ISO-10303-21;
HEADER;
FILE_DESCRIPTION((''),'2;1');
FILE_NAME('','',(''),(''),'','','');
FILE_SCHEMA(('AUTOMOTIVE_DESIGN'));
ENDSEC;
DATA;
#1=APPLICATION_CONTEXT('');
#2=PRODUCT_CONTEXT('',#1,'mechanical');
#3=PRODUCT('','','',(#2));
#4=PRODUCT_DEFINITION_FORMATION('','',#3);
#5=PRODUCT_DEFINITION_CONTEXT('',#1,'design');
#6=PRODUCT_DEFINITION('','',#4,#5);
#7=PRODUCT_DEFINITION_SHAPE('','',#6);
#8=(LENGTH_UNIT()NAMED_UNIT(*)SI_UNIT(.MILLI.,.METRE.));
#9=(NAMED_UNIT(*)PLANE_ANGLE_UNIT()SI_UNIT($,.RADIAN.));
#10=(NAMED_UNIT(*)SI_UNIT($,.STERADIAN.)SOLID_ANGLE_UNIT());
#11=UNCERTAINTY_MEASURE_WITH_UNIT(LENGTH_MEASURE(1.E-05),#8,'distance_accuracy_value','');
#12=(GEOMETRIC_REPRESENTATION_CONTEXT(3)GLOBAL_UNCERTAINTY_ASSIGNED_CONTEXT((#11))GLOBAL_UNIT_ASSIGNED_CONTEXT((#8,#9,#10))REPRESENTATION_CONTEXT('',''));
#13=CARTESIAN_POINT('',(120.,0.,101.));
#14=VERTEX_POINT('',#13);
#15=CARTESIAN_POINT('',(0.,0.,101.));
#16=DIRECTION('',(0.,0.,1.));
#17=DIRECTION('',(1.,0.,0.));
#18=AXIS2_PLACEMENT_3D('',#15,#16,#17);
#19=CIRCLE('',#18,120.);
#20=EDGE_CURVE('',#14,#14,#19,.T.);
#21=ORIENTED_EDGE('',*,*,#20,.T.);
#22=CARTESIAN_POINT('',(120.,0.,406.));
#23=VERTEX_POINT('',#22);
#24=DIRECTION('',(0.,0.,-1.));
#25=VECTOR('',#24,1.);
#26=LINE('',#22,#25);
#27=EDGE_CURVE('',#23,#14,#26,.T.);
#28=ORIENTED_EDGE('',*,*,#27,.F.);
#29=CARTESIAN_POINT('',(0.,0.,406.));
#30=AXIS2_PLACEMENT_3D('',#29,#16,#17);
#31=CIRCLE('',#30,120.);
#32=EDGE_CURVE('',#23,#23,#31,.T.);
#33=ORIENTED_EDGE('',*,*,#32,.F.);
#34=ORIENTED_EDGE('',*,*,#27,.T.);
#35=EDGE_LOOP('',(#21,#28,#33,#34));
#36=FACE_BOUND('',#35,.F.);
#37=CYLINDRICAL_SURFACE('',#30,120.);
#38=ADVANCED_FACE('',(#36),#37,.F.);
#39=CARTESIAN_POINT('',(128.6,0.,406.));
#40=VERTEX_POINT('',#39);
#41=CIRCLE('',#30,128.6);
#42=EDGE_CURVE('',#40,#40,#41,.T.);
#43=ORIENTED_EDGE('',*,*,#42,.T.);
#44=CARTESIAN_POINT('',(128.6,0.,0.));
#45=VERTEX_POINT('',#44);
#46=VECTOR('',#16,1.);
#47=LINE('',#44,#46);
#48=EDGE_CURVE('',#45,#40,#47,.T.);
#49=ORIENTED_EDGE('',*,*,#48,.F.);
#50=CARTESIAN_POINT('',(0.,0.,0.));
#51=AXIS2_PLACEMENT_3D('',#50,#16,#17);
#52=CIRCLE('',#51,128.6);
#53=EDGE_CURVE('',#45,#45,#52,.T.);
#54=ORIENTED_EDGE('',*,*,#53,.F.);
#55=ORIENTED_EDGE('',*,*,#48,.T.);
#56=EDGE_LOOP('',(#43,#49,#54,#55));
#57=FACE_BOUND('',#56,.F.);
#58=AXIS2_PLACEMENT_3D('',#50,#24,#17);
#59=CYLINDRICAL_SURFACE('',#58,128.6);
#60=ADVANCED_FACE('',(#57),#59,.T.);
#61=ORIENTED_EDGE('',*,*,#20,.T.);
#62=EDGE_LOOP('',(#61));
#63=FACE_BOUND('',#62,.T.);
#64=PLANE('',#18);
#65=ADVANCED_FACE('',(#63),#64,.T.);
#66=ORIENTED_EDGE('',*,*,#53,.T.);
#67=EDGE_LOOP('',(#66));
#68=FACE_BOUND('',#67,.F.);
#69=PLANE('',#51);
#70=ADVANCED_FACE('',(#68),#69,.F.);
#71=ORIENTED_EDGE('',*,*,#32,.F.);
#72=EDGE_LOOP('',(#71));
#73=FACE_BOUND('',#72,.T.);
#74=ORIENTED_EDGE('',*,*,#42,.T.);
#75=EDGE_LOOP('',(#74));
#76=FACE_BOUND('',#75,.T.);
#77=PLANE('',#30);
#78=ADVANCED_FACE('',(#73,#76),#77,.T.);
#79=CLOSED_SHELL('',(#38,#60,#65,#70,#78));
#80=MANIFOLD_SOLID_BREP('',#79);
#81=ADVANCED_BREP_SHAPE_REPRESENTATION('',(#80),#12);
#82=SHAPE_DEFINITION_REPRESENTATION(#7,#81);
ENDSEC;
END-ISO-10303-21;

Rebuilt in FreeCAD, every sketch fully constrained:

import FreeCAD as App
import Part
import Sketcher
Q = App.Units.Quantity

doc = App.newDocument("Part")
body = doc.addObject("PartDesign::Body", "Body")

# Sketch on XY plane
sketch1 = doc.addObject("Sketcher::SketchObject", "Sketch")
body.addObject(sketch1)
sketch1.AttachmentSupport = (doc.XY_Plane, [""])
sketch1.MapMode = "FlatFace"
sketch1.addGeometry(Part.Circle(App.Vector(0, 0, 0), App.Vector(0, 0, 1), 129), False)
sketch1.addConstraint([
    Sketcher.Constraint("Coincident", 0, 3, -1, 1),
    Sketcher.Constraint("Diameter", 0, Q("257.2 mm")),
])
pad1 = doc.addObject("PartDesign::Pad", "Pad")
body.addObject(pad1)
pad1.Profile = sketch1
pad1.Length = 406

# Sketch on XY plane
sketch2 = doc.addObject("Sketcher::SketchObject", "Sketch001")
body.addObject(sketch2)
sketch2.AttachmentSupport = (doc.XY_Plane, [""])
sketch2.MapMode = "FlatFace"
sketch2.AttachmentOffset = App.Placement(App.Vector(0, 0, 406), App.Rotation())
sketch2.addGeometry(Part.Circle(App.Vector(0, 0, 0), App.Vector(0, 0, 1), 120), False)
sketch2.addConstraint([
    Sketcher.Constraint("Coincident", 0, 3, -1, 1),
    Sketcher.Constraint("Diameter", 0, Q("240 mm")),
])
pocket1 = doc.addObject("PartDesign::Pocket", "Pocket")
body.addObject(pocket1)
pocket1.Profile = sketch2
pocket1.Length = 305

doc.recompute()
